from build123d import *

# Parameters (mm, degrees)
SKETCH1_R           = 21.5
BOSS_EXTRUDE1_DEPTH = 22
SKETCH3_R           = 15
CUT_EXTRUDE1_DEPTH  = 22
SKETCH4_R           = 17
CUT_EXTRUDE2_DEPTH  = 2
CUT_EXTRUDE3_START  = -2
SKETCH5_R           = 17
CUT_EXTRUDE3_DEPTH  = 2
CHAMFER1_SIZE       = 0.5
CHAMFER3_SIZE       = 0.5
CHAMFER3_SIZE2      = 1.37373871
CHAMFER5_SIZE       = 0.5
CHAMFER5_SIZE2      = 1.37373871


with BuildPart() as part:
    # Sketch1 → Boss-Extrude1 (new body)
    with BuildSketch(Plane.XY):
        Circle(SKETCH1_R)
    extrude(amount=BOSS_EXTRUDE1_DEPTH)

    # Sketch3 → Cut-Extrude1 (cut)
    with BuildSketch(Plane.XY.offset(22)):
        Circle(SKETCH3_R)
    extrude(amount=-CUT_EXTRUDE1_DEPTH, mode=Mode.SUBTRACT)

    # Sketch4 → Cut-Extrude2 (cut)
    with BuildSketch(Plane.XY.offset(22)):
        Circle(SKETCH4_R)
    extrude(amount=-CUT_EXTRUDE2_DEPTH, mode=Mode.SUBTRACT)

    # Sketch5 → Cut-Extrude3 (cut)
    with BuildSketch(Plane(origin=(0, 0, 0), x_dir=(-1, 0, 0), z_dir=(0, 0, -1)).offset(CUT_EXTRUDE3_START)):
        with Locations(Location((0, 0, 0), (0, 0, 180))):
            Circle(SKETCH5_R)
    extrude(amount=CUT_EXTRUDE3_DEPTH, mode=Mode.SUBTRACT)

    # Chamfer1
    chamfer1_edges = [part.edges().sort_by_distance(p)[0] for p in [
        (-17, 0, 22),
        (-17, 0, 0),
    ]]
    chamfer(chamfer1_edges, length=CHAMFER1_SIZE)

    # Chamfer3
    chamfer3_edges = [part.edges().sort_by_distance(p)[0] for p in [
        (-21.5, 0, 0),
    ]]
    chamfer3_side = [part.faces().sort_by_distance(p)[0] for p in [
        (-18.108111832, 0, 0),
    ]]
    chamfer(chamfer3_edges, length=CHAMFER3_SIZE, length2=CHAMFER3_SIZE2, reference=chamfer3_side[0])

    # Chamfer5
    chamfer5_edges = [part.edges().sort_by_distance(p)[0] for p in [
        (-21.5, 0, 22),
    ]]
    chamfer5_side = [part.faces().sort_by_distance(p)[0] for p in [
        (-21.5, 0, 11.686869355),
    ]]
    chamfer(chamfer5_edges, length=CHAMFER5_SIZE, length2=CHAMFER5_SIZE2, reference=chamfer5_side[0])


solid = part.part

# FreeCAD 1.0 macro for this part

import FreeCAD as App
import Part
import Sketcher


def edges_at(feature, points):
    """Names of the edges that pass closest to the given points."""
    edges = feature.Shape.Edges
    near = lambda p: min(range(len(edges)), key=lambda i: edges[i].distToShape(Part.Vertex(*p))[0])
    return sorted({f"Edge{near(p) + 1}" for p in points})

doc = App.newDocument("Part")
body = doc.addObject("PartDesign::Body", "Body")

# Sketch on XY plane
sketch1 = body.newObject("Sketcher::SketchObject", "Sketch")
sketch1.AttachmentSupport = (doc.getObject("XY_Plane"), [""])
sketch1.MapMode = "FlatFace"
sketch1.addGeometry(Part.Circle(App.Vector(0, 0, 0), App.Vector(0, 0, 1), 22), False)
sketch1.addConstraint([
    Sketcher.Constraint("Coincident", 0, 3, -1, 1),
    Sketcher.Constraint("Diameter", 0, 43.0),
])
pad1 = body.newObject("PartDesign::Pad", "Pad")
pad1.Profile = sketch1
pad1.Length = 22

# Sketch on XY plane
sketch2 = body.newObject("Sketcher::SketchObject", "Sketch001")
sketch2.AttachmentSupport = (doc.getObject("XY_Plane"), [""])
sketch2.MapMode = "FlatFace"
sketch2.AttachmentOffset = App.Placement(App.Vector(0, 0, 22), App.Rotation())
sketch2.addGeometry(Part.Circle(App.Vector(0, 0, 0), App.Vector(0, 0, 1), 15), False)
sketch2.addConstraint([
    Sketcher.Constraint("Coincident", 0, 3, -1, 1),
    Sketcher.Constraint("Diameter", 0, 30.0),
])
pocket1 = body.newObject("PartDesign::Pocket", "Pocket")
pocket1.Profile = sketch2
pocket1.Length = 22

# Sketch on XY plane
sketch3 = body.newObject("Sketcher::SketchObject", "Sketch002")
sketch3.AttachmentSupport = (doc.getObject("XY_Plane"), [""])
sketch3.MapMode = "FlatFace"
sketch3.AttachmentOffset = App.Placement(App.Vector(0, 0, 22), App.Rotation())
sketch3.addGeometry(Part.Circle(App.Vector(0, 0, 0), App.Vector(0, 0, 1), 17), False)
sketch3.addConstraint([
    Sketcher.Constraint("Coincident", 0, 3, -1, 1),
    Sketcher.Constraint("Diameter", 0, 34.0),
])
pocket2 = body.newObject("PartDesign::Pocket", "Pocket001")
pocket2.Profile = sketch3
pocket2.Length = 2

# Sketch on XY plane
sketch4 = body.newObject("Sketcher::SketchObject", "Sketch003")
sketch4.AttachmentSupport = (doc.getObject("XY_Plane"), [""])
sketch4.MapMode = "FlatFace"
sketch4.AttachmentOffset = App.Placement(App.Vector(0, 0, 2), App.Rotation())
sketch4.addGeometry(Part.Circle(App.Vector(0, 0, 0), App.Vector(0, 0, 1), 17), False)
sketch4.addConstraint([
    Sketcher.Constraint("Coincident", 0, 3, -1, 1),
    Sketcher.Constraint("Diameter", 0, 34.0),
])
pocket3 = body.newObject("PartDesign::Pocket", "Pocket002")
pocket3.Profile = sketch4
pocket3.Length = 2
doc.recompute()

chamfer = body.newObject("PartDesign::Chamfer", "Chamfer")
chamfer.Base = (pocket3, edges_at(pocket3, [(-17, 0, 22), (-17, 0, 0)]))
chamfer.Size = 0.5
doc.recompute()

chamfer2 = body.newObject("PartDesign::Chamfer", "Chamfer001")
chamfer2.Base = (chamfer, edges_at(chamfer, [(-21.5, 0, 0)]))
chamfer2.ChamferType = "Two distances"
chamfer2.Size = 0.5
chamfer2.Size2 = 1.373739
doc.recompute()

chamfer3 = body.newObject("PartDesign::Chamfer", "Chamfer002")
chamfer3.Base = (chamfer2, edges_at(chamfer2, [(-21.5, 0, 22)]))
chamfer3.ChamferType = "Two distances"
chamfer3.Size = 0.5
chamfer3.Size2 = 1.373739

doc.recompute()
